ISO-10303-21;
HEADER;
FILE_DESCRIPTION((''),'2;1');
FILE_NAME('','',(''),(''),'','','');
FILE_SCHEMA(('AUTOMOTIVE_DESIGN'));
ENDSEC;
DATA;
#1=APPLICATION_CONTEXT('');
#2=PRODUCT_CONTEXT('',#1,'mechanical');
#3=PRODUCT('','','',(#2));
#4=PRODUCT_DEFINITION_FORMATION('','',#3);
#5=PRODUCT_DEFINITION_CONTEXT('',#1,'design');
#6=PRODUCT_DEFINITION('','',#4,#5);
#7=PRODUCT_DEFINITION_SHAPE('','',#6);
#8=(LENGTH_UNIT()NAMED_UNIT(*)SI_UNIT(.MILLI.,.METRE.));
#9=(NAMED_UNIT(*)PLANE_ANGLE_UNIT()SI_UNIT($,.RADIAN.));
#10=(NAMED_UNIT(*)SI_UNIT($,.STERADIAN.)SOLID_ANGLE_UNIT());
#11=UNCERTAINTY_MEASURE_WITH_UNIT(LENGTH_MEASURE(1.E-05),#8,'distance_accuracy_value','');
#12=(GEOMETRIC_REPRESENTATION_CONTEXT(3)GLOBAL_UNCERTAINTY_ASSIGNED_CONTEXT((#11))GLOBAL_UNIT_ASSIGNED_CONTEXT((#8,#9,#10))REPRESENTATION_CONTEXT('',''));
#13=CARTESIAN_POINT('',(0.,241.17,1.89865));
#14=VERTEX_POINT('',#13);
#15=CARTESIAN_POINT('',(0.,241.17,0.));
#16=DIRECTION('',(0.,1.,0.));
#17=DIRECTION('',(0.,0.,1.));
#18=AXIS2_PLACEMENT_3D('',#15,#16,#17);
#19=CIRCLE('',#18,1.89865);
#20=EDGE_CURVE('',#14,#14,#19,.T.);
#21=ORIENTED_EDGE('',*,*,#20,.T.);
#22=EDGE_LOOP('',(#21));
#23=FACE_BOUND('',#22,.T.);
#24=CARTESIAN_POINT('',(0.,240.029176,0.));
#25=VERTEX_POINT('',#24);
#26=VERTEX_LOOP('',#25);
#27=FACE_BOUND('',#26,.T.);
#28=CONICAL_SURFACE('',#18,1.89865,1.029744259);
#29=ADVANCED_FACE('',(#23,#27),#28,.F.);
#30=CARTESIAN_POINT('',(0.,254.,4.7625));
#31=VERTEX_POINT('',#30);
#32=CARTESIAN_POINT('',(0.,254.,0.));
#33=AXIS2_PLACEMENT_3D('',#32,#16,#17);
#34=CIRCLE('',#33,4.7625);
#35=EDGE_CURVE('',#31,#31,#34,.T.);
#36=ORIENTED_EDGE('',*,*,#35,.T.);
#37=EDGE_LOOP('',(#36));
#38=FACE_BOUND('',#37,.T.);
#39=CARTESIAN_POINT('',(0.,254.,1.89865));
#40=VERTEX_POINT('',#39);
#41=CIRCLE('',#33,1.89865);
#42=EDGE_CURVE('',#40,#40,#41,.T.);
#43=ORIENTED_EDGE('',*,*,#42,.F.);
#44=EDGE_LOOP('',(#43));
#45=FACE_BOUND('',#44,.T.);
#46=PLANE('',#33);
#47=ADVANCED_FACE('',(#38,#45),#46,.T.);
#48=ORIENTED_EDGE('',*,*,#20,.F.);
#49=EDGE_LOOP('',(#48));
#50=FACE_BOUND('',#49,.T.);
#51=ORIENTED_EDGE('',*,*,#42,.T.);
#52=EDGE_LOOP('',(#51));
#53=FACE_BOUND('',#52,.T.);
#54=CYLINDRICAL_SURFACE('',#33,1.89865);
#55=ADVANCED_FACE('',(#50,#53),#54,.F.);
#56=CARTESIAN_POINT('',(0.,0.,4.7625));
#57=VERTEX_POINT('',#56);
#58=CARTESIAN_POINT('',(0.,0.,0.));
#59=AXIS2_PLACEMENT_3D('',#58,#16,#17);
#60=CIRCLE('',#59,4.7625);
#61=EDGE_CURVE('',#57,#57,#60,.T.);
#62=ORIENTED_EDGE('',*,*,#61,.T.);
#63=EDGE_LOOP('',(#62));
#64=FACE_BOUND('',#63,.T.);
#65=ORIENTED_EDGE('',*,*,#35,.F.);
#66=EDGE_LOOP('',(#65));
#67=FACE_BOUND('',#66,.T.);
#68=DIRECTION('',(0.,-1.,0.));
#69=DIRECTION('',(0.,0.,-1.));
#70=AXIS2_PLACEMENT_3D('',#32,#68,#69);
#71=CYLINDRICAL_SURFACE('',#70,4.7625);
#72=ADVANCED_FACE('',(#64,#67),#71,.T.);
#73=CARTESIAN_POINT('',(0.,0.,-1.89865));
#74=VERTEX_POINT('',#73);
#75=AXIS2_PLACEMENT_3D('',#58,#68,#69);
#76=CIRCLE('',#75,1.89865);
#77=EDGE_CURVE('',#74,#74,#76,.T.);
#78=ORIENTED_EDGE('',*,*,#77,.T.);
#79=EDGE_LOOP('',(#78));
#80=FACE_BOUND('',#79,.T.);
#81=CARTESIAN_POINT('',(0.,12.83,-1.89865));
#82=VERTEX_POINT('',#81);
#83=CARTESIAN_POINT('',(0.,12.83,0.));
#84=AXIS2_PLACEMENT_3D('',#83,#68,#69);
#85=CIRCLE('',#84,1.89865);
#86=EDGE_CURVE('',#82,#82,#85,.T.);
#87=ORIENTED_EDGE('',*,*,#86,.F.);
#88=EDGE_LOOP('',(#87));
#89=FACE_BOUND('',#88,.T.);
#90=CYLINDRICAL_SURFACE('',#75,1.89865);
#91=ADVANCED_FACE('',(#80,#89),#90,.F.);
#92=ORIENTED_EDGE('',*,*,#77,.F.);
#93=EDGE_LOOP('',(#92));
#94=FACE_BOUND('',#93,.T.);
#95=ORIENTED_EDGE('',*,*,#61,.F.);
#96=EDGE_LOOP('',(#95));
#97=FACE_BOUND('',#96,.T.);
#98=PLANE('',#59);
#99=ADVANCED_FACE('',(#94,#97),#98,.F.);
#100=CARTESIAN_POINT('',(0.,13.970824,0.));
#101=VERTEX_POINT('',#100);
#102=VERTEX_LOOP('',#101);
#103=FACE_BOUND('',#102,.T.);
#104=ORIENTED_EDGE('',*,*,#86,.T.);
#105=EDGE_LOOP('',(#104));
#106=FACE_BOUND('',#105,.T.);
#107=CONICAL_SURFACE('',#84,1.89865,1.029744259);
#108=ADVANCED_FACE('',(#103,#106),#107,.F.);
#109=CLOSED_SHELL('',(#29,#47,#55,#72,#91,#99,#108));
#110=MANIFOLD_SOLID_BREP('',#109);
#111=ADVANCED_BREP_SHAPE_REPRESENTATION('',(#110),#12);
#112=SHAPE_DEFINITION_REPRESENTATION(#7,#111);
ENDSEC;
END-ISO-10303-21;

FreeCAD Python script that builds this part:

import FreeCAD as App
import Part
import Sketcher
from FreeCAD import Vector
Q = App.Units.Quantity

doc = App.newDocument("Part")
body = doc.addObject("PartDesign::Body", "Body")

sketch1 = body.newObject("Sketcher::SketchObject", "Sketch")
sketch1.AttachmentSupport = (doc.getObject("XZ_Plane"), [""])
sketch1.MapMode = "FlatFace"
sketch1.addGeometry(Part.Circle(Vector(0, 0, 0), Vector(0, 0, 1), 4.8), False)
sketch1.addConstraint([
    Sketcher.Constraint("Coincident", 0, 3, -1, 1),
    Sketcher.Constraint("Diameter", 0, Q("0.375 in")),
])
pad1 = body.newObject("PartDesign::Pad", "Pad")
pad1.Profile = sketch1
pad1.Length = Q("10 in")
pad1.Reversed = True

sketch2 = body.newObject("Sketcher::SketchObject", "Sketch001")
sketch2.AttachmentSupport = (doc.getObject("XZ_Plane"), [""])
sketch2.MapMode = "FlatFace"
sketch2.AttachmentOffset = App.Placement(Vector(0, 0, -10 * 25.4), App.Rotation())
sketch2.addGeometry(Part.Circle(Vector(0, 0, 0), Vector(0, 0, 1), 1.9), False)
sketch2.addConstraint([
    Sketcher.Constraint("Coincident", 0, 3, -1, 1),
    Sketcher.Constraint("Diameter", 0, Q("0.1495 in")),
])
doc.recompute()
hole = body.newObject("PartDesign::Hole", "Hole")
hole.Profile = sketch2
hole.ThreadType = "None"
hole.Diameter = Q("0.1495 in")
hole.DepthType = "Dimension"
hole.Depth = 12.83
hole.DrillPoint = "Angled"
hole.DrillPointAngle = 118
hole.Reversed = True

sketch3 = body.newObject("Sketcher::SketchObject", "Sketch002")
sketch3.AttachmentSupport = (doc.getObject("XZ_Plane"), [""])
sketch3.MapMode = "FlatFace"
sketch3.addGeometry(Part.Circle(Vector(0, 0, 0), Vector(0, 0, 1), 1.9), False)
sketch3.addConstraint([
    Sketcher.Constraint("Coincident", 0, 3, -1, 1),
    Sketcher.Constraint("Diameter", 0, Q("0.1495 in")),
])
doc.recompute()
hole2 = body.newObject("PartDesign::Hole", "Hole001")
hole2.Profile = sketch3
hole2.ThreadType = "None"
hole2.Diameter = Q("0.1495 in")
hole2.DepthType = "Dimension"
hole2.Depth = 12.83
hole2.DrillPoint = "Angled"
hole2.DrillPointAngle = 118

doc.recompute()
